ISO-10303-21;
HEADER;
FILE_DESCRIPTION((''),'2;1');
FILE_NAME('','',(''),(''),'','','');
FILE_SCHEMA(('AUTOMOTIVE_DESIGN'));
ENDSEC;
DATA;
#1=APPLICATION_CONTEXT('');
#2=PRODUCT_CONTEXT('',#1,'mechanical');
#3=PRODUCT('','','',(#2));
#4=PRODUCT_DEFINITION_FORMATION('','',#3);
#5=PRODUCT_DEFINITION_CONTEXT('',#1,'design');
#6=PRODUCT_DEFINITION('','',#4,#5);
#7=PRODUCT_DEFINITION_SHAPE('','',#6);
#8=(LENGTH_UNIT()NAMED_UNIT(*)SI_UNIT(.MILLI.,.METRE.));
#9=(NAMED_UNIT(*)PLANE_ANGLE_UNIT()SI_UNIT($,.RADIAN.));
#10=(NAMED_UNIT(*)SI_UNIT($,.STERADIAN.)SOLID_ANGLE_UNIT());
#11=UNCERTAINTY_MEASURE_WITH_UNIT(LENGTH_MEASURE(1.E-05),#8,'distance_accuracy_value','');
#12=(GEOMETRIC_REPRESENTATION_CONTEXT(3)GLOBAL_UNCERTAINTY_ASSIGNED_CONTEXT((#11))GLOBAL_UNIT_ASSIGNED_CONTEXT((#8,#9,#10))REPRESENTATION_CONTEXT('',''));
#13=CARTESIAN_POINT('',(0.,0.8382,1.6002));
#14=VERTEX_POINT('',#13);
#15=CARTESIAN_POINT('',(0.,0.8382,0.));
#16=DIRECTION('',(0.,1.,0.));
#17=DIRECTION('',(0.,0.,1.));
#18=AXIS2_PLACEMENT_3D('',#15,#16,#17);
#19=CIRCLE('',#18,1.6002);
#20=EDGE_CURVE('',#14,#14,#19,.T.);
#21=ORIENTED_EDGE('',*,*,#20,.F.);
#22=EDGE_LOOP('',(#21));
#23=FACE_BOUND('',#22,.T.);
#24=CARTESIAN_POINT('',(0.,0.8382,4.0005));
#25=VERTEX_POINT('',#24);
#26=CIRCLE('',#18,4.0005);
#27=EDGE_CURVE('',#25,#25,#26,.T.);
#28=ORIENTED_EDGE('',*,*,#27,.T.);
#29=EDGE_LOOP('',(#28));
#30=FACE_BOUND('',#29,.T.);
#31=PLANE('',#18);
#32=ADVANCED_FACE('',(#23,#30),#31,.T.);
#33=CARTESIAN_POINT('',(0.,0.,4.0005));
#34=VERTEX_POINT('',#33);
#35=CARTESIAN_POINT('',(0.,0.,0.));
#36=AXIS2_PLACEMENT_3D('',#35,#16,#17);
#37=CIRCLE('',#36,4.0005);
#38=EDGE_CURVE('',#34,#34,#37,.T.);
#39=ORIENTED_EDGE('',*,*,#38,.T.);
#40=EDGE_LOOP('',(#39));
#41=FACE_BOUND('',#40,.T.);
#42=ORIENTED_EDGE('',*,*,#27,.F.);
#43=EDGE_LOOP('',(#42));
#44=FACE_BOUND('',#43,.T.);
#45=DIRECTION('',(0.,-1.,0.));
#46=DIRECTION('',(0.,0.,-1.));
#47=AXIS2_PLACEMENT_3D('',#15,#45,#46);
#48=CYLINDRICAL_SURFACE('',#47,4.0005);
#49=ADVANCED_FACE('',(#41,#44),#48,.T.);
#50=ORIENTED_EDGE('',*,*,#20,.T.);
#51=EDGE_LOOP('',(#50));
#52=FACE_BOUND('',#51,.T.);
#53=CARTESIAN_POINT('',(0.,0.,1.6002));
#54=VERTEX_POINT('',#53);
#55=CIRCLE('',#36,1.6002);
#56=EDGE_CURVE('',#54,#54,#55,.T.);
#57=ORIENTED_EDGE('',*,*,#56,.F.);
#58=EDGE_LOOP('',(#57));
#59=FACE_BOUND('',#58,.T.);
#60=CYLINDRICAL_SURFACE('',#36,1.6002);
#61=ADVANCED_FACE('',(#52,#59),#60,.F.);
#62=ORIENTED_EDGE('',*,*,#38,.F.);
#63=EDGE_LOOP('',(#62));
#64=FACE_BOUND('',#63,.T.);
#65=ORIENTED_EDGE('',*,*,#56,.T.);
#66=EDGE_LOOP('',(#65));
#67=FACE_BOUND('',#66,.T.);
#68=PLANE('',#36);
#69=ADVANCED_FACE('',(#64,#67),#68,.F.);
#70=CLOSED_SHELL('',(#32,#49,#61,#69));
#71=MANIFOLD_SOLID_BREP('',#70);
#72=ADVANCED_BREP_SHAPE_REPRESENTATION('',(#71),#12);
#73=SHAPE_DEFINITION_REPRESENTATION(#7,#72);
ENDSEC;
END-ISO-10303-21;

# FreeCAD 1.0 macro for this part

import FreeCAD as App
import Part
import Sketcher
Q = App.Units.Quantity

doc = App.newDocument("Part")
params = doc.addObject("Spreadsheet::Sheet", "Params")
for row, (alias, value) in enumerate([
    ("sketch1_diameter", "0.315 in"),
    ("pad1_length", "0.033 in"),
    ("sketch2_diameter", "0.126 in"),
], start=1):
    params.set(f"A{row}", alias)
    params.set(f"B{row}", "=" + value)
    params.setAlias(f"B{row}", alias)

body = doc.addObject("PartDesign::Body", "Body")

# Sketch on XZ plane
sketch1 = doc.addObject("Sketcher::SketchObject", "Sketch")
body.addObject(sketch1)
sketch1.AttachmentSupport = (doc.XZ_Plane, [""])
sketch1.MapMode = "FlatFace"
sketch1.addGeometry(Part.Circle(App.Vector(0, 0, 0), App.Vector(0, 0, 1), 4), False)
sketch1.addConstraint([
    Sketcher.Constraint("Coincident", 0, 3, -1, 1),
    Sketcher.Constraint("Diameter", 0, Q("0.315 in")),
])
sketch1.setExpression("Constraints[1]", "Params.sketch1_diameter")
pad1 = doc.addObject("PartDesign::Pad", "Pad")
body.addObject(pad1)
pad1.Profile = sketch1
pad1.setExpression("Length", "Params.pad1_length")
pad1.Reversed = True

# Sketch on XZ plane
sketch2 = doc.addObject("Sketcher::SketchObject", "Sketch001")
body.addObject(sketch2)
sketch2.AttachmentSupport = (doc.XZ_Plane, [""])
sketch2.MapMode = "FlatFace"
sketch2.AttachmentOffset = App.Placement(App.Vector(0, 0, -0.033 * 25.4), App.Rotation())
sketch2.addGeometry(Part.Circle(App.Vector(0, 0, 0), App.Vector(0, 0, 1), 1.6), False)
sketch2.addConstraint([
    Sketcher.Constraint("Coincident", 0, 3, -1, 1),
    Sketcher.Constraint("Diameter", 0, Q("0.126 in")),
])
sketch2.setExpression("Constraints[1]", "Params.sketch2_diameter")
pocket1 = doc.addObject("PartDesign::Pocket", "Pocket")
body.addObject(pocket1)
pocket1.Profile = sketch2
pocket1.Type = "ThroughAll"
pocket1.Reversed = True

doc.recompute()
